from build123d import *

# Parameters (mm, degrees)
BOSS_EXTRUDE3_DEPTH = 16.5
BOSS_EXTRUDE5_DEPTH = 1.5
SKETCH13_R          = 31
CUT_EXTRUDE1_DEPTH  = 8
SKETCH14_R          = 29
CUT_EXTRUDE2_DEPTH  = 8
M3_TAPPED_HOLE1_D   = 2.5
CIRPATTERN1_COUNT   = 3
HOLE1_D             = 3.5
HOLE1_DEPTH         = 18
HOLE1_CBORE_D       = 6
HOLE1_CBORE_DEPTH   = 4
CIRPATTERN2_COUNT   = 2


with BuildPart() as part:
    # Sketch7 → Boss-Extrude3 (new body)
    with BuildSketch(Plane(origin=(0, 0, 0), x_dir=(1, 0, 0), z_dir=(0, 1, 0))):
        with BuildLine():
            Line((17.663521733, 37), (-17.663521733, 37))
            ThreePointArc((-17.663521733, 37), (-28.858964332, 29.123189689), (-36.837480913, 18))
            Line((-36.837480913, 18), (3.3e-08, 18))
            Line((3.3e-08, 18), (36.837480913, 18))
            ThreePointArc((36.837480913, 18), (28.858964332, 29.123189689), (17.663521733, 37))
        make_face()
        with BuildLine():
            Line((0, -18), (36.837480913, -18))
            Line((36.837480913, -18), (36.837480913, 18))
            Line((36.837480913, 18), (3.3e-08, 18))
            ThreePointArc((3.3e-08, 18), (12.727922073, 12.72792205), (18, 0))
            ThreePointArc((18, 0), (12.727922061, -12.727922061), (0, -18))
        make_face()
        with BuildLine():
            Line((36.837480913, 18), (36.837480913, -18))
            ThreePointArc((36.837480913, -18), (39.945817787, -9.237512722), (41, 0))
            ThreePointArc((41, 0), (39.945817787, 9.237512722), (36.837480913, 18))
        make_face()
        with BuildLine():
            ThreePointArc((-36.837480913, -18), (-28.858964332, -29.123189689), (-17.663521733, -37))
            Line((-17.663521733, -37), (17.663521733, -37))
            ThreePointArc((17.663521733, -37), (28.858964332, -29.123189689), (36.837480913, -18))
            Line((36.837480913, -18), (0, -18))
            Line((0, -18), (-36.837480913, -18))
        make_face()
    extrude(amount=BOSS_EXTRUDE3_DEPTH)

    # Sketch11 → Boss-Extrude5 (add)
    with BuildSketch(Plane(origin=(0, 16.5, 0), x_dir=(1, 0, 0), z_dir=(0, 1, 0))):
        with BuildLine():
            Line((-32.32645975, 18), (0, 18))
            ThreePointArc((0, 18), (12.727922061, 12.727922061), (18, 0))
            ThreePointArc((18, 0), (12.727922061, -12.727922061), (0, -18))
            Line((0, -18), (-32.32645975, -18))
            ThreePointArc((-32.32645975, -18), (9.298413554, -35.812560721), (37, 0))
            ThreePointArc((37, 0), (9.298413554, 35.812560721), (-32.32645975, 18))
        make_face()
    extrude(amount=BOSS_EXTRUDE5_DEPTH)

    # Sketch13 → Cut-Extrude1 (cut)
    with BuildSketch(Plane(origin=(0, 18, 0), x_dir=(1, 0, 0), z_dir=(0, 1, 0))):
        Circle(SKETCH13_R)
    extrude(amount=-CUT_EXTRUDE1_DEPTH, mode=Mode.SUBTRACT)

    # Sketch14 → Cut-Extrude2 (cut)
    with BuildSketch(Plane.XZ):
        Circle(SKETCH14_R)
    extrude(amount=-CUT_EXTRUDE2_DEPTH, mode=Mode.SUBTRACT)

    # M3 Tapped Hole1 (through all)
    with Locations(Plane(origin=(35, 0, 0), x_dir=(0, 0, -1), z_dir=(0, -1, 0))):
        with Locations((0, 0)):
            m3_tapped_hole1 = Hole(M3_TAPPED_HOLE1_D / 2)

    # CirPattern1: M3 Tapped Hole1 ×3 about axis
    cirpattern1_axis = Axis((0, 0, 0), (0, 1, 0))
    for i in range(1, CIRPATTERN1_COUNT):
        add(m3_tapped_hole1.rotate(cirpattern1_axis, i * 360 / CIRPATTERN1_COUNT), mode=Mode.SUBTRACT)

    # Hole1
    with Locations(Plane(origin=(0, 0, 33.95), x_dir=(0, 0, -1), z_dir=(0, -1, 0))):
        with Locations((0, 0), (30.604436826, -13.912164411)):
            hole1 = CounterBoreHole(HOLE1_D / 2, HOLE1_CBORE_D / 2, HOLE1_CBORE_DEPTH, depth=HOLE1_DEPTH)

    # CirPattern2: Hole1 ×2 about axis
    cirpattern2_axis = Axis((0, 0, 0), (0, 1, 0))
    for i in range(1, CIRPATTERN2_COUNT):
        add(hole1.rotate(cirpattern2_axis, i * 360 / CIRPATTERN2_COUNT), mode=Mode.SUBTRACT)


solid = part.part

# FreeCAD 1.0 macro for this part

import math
import FreeCAD as App
import Part
import Sketcher

V = App.Vector

doc = App.newDocument("Part")
body = doc.addObject("PartDesign::Body", "Body")

# Sketch on XZ plane
sketch1 = body.newObject("Sketcher::SketchObject", "Sketch")
sketch1.AttachmentSupport = (doc.getObject("XZ_Plane"), [""])
sketch1.MapMode = "FlatFace"
sketch1.addGeometry([
    Part.LineSegment(V(17.663522, -37, 0), V(-17.663522, -37, 0)),  # 0
    Part.ArcOfCircle(Part.Circle(V(0, 0, 0), V(0, 0, 1), 41), math.radians(-153.95835), math.radians(-115.519458)),  # 1
    Part.LineSegment(V(-36.837481, -18, 0), V(0, -18, 0)),  # 2
    Part.ArcOfCircle(Part.Circle(V(0, 0, 0), V(0, 0, 1), 18), math.radians(-90), math.radians(0)),  # 3
    Part.ArcOfCircle(Part.Circle(V(0, 0, 0), V(0, 0, 1), 18), math.radians(0), math.radians(90)),  # 4
    Part.LineSegment(V(0, 18, 0), V(-36.837481, 18, 0)),  # 5
    Part.ArcOfCircle(Part.Circle(V(0, 0, 0), V(0, 0, 1), 41), math.radians(115.519458), math.radians(153.95835)),  # 6
    Part.LineSegment(V(-17.663522, 37, 0), V(17.663522, 37, 0)),  # 7
    Part.ArcOfCircle(Part.Circle(V(0, 0, 0), V(0, 0, 1), 41), math.radians(26.04165), math.radians(64.480542)),  # 8
    Part.ArcOfCircle(Part.Circle(V(0, 0, 0), V(0, 0, 1), 41), math.radians(0), math.radians(26.04165)),  # 9
    Part.ArcOfCircle(Part.Circle(V(0, 0, 0), V(0, 0, 1), 41), math.radians(-26.04165), math.radians(0)),  # 10
    Part.ArcOfCircle(Part.Circle(V(0, 0, 0), V(0, 0, 1), 41), math.radians(-64.480542), math.radians(-26.04165)),  # 11
], False)
sketch1.addConstraint([
    Sketcher.Constraint("Coincident", 0, 2, 1, 2),
    Sketcher.Constraint("Coincident", 1, 1, 2, 1),
    Sketcher.Constraint("Tangent", 2, 2, 3, 1),
    Sketcher.Constraint("Tangent", 3, 2, 4, 1),
    Sketcher.Constraint("Tangent", 4, 2, 5, 1),
    Sketcher.Constraint("Coincident", 5, 2, 6, 2),
    Sketcher.Constraint("Coincident", 6, 1, 7, 1),
    Sketcher.Constraint("Coincident", 7, 2, 8, 2),
    Sketcher.Constraint("Tangent", 8, 1, 9, 2),
    Sketcher.Constraint("Tangent", 9, 1, 10, 2),
    Sketcher.Constraint("Tangent", 10, 1, 11, 2),
    Sketcher.Constraint("Coincident", 11, 1, 0, 1),
    Sketcher.Constraint("Horizontal", 0),
    Sketcher.Constraint("Horizontal", 2),
    Sketcher.Constraint("Horizontal", 5),
    Sketcher.Constraint("Horizontal", 7),
    Sketcher.Constraint("Coincident", 1, 3, -1, 1),
    Sketcher.Constraint("Coincident", 3, 3, -1, 1),
    Sketcher.Constraint("Coincident", 6, 3, -1, 1),
    Sketcher.Constraint("Coincident", 8, 3, -1, 1),
    Sketcher.Constraint("Coincident", 10, 3, -1, 1),
    Sketcher.Constraint("Equal", 3, 4),
    Sketcher.Constraint("Equal", 1, 6),
    Sketcher.Constraint("Equal", 6, 8),
    Sketcher.Constraint("Equal", 10, 11),
    Sketcher.Constraint("PointOnObject", 3, 2, -1),
    Sketcher.Constraint("PointOnObject", 9, 1, -1),
    Sketcher.Constraint("Horizontal", 5, 2, 8, 1),
    Sketcher.Constraint("Horizontal", 2, 2, 10, 1),
    Sketcher.Constraint("Vertical", 0, 2, 6, 1),
    Sketcher.Constraint("Radius", 1, 41.0),
    Sketcher.Constraint("Radius", 3, 18.0),
    Sketcher.Constraint("DistanceY", 0, 2, -1, 1, 37.0),
])
pad1 = body.newObject("PartDesign::Pad", "Pad")
pad1.Profile = sketch1
pad1.Length = 16.5
pad1.Reversed = True

# Sketch on XZ plane
sketch2 = body.newObject("Sketcher::SketchObject", "Sketch001")
sketch2.AttachmentSupport = (doc.getObject("XZ_Plane"), [""])
sketch2.MapMode = "FlatFace"
sketch2.AttachmentOffset = App.Placement(V(0, 0, -16.5), App.Rotation())
sketch2.addGeometry([
    Part.LineSegment(V(-32.32646, -18, 0), V(0, -18, 0)),  # 0
    Part.ArcOfCircle(Part.Circle(V(0, 0, 0), V(0, 0, 1), 18), math.radians(-90), math.radians(0)),  # 1
    Part.ArcOfCircle(Part.Circle(V(0, 0, 0), V(0, 0, 1), 18), math.radians(0), math.radians(90)),  # 2
    Part.LineSegment(V(0, 18, 0), V(-32.32646, 18, 0)),  # 3
    Part.ArcOfCircle(Part.Circle(V(0, 0, 0), V(0, 0, 1), 37), math.radians(0), math.radians(150.890091)),  # 4
    Part.ArcOfCircle(Part.Circle(V(0, 0, 0), V(0, 0, 1), 37), math.radians(-150.890091), math.radians(0)),  # 5
], False)
sketch2.addConstraint([
    Sketcher.Constraint("Tangent", 0, 2, 1, 1),
    Sketcher.Constraint("Tangent", 1, 2, 2, 1),
    Sketcher.Constraint("Tangent", 2, 2, 3, 1),
    Sketcher.Constraint("Coincident", 3, 2, 4, 2),
    Sketcher.Constraint("Tangent", 4, 1, 5, 2),
    Sketcher.Constraint("Coincident", 5, 1, 0, 1),
    Sketcher.Constraint("Horizontal", 0),
    Sketcher.Constraint("Horizontal", 3),
    Sketcher.Constraint("Coincident", 1, 3, -1, 1),
    Sketcher.Constraint("Coincident", 4, 3, -1, 1),
    Sketcher.Constraint("Equal", 1, 2),
    Sketcher.Constraint("Equal", 4, 5),
    Sketcher.Constraint("PointOnObject", 1, 2, -1),
    Sketcher.Constraint("PointOnObject", 4, 1, -1),
    Sketcher.Constraint("Radius", 1, 18.0),
    Sketcher.Constraint("Radius", 4, 37.0),
])
pad2 = body.newObject("PartDesign::Pad", "Pad001")
pad2.Profile = sketch2
pad2.Length = 1.5
pad2.Reversed = True

# Sketch on XZ plane
sketch3 = body.newObject("Sketcher::SketchObject", "Sketch002")
sketch3.AttachmentSupport = (doc.getObject("XZ_Plane"), [""])
sketch3.MapMode = "FlatFace"
sketch3.AttachmentOffset = App.Placement(V(0, 0, -18), App.Rotation())
sketch3.addGeometry(Part.Circle(V(0, 0, 0), V(0, 0, 1), 31), False)
sketch3.addConstraint([
    Sketcher.Constraint("Coincident", 0, 3, -1, 1),
    Sketcher.Constraint("Diameter", 0, 62.0),
])
pocket1 = body.newObject("PartDesign::Pocket", "Pocket")
pocket1.Profile = sketch3
pocket1.Length = 8
pocket1.Reversed = True

# Sketch on XZ plane
sketch4 = body.newObject("Sketcher::SketchObject", "Sketch003")
sketch4.AttachmentSupport = (doc.getObject("XZ_Plane"), [""])
sketch4.MapMode = "FlatFace"
sketch4.addGeometry(Part.Circle(V(0, 0, 0), V(0, 0, 1), 29), False)
sketch4.addConstraint([
    Sketcher.Constraint("Coincident", 0, 3, -1, 1),
    Sketcher.Constraint("Diameter", 0, 58.0),
])
pocket2 = body.newObject("PartDesign::Pocket", "Pocket001")
pocket2.Profile = sketch4
pocket2.Length = 8

# Sketch on XZ plane
sketch5 = body.newObject("Sketcher::SketchObject", "Sketch004")
sketch5.AttachmentSupport = (doc.getObject("XZ_Plane"), [""])
sketch5.MapMode = "FlatFace"
sketch5.addGeometry(Part.Circle(V(35, 0, 0), V(0, 0, 1), 1.25), False)
sketch5.addConstraint([
    Sketcher.Constraint("PointOnObject", 0, 3, -1),
    Sketcher.Constraint("Diameter", 0, 2.5),
    Sketcher.Constraint("DistanceX", -1, 1, 0, 3, 35.0),
])
doc.recompute()
hole = body.newObject("PartDesign::Hole", "Hole")
hole.Profile = sketch5
hole.ThreadType = "None"
hole.Diameter = 2.5
hole.DepthType = "ThroughAll"
doc.recompute()

polarpattern = body.newObject("PartDesign::PolarPattern", "PolarPattern")
polarpattern.Originals = [hole]
polarpattern.Axis = (doc.getObject("Y_Axis"), [""])
polarpattern.Angle = 360
polarpattern.Occurrences = 3
body.Tip = polarpattern

# Sketch on XZ plane
sketch6 = body.newObject("Sketcher::SketchObject", "Sketch005")
sketch6.AttachmentSupport = (doc.getObject("XZ_Plane"), [""])
sketch6.MapMode = "FlatFace"
sketch6.addGeometry([
    Part.Circle(V(0, 33.95, 0), V(0, 0, 1), 1.75),
    Part.Circle(V(-13.912164, 3.345563, 0), V(0, 0, 1), 1.75),
], False)
sketch6.addConstraint([
    Sketcher.Constraint("Equal", 0, 1),
    Sketcher.Constraint("PointOnObject", 0, 3, -2),
    Sketcher.Constraint("Diameter", 0, 3.5),
    Sketcher.Constraint("DistanceY", -1, 1, 0, 3, 33.95),
    Sketcher.Constraint("DistanceX", 1, 3, -1, 1, 13.912164),
    Sketcher.Constraint("DistanceY", -1, 1, 1, 3, 3.345563),
])
doc.recompute()
hole2 = body.newObject("PartDesign::Hole", "Hole001")
hole2.Profile = sketch6
hole2.ThreadType = "None"
hole2.Diameter = 3.5
hole2.DepthType = "Dimension"
hole2.Depth = 18
hole2.DrillPoint = "Flat"
hole2.HoleCutType = "Counterbore"
hole2.HoleCutDiameter = 6
hole2.HoleCutDepth = 4
doc.recompute()

polarpattern2 = body.newObject("PartDesign::PolarPattern", "PolarPattern001")
polarpattern2.Originals = [hole2]
polarpattern2.Axis = (doc.getObject("Y_Axis"), [""])
polarpattern2.Angle = 360
polarpattern2.Occurrences = 2
body.Tip = polarpattern2

doc.recompute()
